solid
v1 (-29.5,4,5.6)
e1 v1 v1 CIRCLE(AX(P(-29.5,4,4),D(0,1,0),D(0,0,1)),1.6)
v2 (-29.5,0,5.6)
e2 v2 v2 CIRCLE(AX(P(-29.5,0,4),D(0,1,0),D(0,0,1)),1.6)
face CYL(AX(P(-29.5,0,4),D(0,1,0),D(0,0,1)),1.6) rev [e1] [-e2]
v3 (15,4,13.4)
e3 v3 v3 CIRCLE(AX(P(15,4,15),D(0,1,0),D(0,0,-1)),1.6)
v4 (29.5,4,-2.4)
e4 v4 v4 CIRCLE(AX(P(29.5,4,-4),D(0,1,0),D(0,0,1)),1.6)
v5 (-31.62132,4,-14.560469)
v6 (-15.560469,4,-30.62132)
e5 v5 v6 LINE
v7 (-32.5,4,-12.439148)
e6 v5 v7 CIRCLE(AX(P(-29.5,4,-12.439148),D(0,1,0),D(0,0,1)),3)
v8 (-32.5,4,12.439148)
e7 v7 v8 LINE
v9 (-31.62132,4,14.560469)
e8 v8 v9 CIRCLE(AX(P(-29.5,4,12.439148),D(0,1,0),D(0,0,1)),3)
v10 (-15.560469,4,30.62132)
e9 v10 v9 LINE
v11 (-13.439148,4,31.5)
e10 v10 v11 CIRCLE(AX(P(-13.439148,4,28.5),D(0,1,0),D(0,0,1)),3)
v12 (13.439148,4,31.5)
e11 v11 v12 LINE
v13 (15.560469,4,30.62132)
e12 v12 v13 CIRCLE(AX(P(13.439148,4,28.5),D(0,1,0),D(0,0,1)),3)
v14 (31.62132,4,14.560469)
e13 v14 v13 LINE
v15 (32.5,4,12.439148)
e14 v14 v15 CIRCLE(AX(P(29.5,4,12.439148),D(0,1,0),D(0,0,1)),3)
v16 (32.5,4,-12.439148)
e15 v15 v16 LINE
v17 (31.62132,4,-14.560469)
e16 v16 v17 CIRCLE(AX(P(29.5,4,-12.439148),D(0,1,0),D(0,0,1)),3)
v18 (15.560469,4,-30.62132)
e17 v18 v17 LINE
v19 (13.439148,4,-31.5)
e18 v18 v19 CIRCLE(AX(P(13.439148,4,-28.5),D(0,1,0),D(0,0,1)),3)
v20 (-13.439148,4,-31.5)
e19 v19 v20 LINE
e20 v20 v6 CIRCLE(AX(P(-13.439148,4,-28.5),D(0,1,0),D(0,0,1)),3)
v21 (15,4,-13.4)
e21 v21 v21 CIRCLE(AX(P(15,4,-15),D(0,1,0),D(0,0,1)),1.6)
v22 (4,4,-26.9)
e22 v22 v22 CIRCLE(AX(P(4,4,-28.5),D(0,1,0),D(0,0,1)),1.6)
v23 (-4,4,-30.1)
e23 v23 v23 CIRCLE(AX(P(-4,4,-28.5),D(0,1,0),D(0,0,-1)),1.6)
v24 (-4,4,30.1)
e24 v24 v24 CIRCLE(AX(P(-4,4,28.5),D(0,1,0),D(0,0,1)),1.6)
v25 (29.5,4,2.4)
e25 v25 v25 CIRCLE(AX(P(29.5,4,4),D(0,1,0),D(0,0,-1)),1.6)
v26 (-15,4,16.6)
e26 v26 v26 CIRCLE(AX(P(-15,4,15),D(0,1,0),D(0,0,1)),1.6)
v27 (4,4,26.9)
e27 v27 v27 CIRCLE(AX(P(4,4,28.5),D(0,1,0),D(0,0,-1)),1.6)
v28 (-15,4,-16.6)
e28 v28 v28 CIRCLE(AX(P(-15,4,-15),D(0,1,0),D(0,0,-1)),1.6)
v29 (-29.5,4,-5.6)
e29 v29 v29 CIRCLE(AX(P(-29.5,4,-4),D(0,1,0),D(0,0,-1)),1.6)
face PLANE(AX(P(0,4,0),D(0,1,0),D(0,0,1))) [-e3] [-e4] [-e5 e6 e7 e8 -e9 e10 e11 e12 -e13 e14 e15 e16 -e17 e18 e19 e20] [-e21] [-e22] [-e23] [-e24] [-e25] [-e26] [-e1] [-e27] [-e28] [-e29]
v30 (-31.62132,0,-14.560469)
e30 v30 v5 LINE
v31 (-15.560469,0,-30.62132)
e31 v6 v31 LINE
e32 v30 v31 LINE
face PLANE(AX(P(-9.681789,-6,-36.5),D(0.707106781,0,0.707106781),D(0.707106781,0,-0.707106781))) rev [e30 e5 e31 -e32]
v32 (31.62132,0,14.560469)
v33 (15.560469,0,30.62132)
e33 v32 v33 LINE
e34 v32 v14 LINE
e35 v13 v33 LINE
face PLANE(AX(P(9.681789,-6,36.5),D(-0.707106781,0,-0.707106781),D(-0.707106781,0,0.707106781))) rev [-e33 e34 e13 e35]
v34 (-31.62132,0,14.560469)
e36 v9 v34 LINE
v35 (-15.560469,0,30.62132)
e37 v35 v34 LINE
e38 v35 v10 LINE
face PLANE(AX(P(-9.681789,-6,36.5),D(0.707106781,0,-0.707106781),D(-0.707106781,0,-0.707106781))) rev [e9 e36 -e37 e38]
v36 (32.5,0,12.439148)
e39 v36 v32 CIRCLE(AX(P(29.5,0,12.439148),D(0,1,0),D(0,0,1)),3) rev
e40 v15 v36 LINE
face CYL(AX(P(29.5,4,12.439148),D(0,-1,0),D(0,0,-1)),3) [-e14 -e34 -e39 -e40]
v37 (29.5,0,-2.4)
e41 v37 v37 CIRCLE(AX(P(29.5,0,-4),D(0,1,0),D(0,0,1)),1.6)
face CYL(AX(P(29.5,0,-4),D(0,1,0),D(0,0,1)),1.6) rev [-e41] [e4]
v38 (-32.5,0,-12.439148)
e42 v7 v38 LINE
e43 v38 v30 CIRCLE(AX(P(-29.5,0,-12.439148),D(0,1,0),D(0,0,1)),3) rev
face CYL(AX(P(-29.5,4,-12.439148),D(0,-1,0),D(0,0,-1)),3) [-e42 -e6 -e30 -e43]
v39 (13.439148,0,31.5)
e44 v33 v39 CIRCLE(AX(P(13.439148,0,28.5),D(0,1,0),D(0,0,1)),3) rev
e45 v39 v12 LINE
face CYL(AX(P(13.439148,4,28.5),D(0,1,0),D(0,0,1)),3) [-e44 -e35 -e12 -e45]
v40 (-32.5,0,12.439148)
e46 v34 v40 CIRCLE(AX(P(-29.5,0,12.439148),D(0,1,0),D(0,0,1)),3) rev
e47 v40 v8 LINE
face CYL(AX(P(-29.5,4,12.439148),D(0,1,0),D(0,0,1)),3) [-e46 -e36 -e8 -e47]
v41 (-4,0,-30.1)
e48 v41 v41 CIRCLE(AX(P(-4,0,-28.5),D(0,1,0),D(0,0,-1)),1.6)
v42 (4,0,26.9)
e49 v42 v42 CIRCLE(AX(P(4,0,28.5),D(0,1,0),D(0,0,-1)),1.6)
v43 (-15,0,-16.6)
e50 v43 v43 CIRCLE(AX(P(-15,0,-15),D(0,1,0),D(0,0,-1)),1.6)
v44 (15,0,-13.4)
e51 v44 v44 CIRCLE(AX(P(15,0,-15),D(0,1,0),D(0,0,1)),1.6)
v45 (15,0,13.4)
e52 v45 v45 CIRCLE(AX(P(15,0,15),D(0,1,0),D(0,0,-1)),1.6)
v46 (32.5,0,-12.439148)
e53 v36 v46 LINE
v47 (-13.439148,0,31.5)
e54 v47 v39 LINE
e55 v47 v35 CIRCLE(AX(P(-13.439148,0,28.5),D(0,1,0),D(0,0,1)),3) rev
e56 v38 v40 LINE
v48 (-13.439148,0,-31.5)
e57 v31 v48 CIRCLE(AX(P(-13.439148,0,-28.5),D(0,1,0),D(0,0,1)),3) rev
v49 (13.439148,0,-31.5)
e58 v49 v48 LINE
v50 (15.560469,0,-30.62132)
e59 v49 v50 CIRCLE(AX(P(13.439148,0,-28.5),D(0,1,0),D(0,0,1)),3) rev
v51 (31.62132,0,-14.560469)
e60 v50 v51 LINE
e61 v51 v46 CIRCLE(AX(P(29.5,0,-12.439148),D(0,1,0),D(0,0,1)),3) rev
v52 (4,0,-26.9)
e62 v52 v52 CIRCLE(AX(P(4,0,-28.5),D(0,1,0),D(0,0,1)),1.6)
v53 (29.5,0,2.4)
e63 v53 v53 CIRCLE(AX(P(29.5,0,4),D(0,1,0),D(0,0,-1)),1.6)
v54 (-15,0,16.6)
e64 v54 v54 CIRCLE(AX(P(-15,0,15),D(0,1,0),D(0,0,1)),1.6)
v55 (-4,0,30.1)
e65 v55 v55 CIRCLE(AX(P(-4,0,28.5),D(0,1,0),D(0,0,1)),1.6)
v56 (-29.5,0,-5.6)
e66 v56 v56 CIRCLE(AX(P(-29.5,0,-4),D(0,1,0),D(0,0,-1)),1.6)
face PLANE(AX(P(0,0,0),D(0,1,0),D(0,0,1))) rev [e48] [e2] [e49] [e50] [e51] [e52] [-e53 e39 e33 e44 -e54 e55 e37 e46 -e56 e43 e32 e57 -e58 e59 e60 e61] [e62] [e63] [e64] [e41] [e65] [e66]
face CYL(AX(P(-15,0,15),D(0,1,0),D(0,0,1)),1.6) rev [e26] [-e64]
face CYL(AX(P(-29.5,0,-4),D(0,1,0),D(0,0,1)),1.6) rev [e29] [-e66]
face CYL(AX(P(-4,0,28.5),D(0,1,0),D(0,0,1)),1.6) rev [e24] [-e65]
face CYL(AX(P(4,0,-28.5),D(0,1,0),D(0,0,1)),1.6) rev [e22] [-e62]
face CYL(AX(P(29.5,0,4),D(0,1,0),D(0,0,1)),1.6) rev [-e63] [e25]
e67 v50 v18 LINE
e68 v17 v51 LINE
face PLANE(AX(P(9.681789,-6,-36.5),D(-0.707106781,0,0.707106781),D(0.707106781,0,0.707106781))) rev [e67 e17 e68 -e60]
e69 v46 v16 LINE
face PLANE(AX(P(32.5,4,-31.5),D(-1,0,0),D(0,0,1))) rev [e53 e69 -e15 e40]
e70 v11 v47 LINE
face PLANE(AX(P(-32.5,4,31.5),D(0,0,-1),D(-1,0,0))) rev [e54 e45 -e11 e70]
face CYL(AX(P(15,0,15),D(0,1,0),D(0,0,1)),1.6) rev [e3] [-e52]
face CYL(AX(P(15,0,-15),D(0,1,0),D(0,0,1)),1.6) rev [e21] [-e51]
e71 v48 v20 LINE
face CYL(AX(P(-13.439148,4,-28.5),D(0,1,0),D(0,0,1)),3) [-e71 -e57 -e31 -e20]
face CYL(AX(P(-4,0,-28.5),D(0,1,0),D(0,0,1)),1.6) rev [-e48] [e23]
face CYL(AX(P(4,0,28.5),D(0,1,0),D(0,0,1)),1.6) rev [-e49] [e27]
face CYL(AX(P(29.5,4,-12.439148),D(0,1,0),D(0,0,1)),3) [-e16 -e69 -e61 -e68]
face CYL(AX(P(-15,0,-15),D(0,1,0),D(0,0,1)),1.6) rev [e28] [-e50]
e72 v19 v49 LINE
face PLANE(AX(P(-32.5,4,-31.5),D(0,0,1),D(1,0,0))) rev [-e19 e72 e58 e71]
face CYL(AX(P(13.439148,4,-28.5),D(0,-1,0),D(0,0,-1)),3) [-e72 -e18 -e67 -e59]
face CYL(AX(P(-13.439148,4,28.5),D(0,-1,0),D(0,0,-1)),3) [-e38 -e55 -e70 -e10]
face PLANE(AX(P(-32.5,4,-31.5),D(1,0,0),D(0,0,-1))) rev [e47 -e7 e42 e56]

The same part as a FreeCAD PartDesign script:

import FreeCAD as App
import Part
import Sketcher


def edges_at(feature, points):
    """Names of the edges that pass closest to the given points."""
    edges = feature.Shape.Edges
    near = lambda p: min(range(len(edges)), key=lambda i: edges[i].distToShape(Part.Vertex(*p))[0])
    return sorted({f"Edge{near(p) + 1}" for p in points})


def add_polygon(sketch, points):
    """Adds a closed chain of lines whose ends are joined by coincident constraints."""
    first, n = sketch.GeometryCount, len(points)
    for a, b in zip(points, points[1:] + points[:1]):
        sketch.addGeometry(Part.LineSegment(App.Vector(*a, 0), App.Vector(*b, 0)), False)
    for i in range(n):
        sketch.addConstraint(Sketcher.Constraint("Coincident", first + i, 2, first + (i + 1) % n, 1))

doc = App.newDocument("Part")
params = doc.addObject("Spreadsheet::Sheet", "Params")
for row, (alias, value) in enumerate([
    ("sketch1_width", "65 mm"),
    ("sketch1_height", "63 mm"),
    ("pad1_length", "4 mm"),
    ("sketch2_diameter", "3.2 mm"),
    ("pocket1_length", "4 mm"),
    ("sketch3_diameter", "3.2 mm"),
    ("pocket2_length", "4 mm"),
    ("fillet_radius", "3 mm"),
    ("pocket3_length", "10 mm"),
    ("fillet2_radius", "3 mm"),
], start=1):
    params.set(f"A{row}", alias)
    params.set(f"B{row}", "=" + value)
    params.setAlias(f"B{row}", alias)

body = doc.addObject("PartDesign::Body", "Body")

# Sketch on XZ plane
sketch1 = body.newObject("Sketcher::SketchObject", "Sketch")
sketch1.AttachmentSupport = (doc.getObject("XZ_Plane"), [""])
sketch1.MapMode = "FlatFace"
add_polygon(sketch1, [(-32, -32), (-32, 32), (32, 32), (32, -32)])  # lines 0-3
sketch1.addConstraint([
    Sketcher.Constraint("Vertical", 0),
    Sketcher.Constraint("Horizontal", 1),
    Sketcher.Constraint("Vertical", 2),
    Sketcher.Constraint("Horizontal", 3),
    Sketcher.Constraint("Symmetric", 0, 2, 2, 2, -1, 1),
    Sketcher.Constraint("DistanceX", 1, 1, 1, 2, 65.0),
    Sketcher.Constraint("DistanceY", 0, 1, 0, 2, 63.0),
])
sketch1.setExpression("Constraints[9]", "Params.sketch1_width")
sketch1.setExpression("Constraints[10]", "Params.sketch1_height")
pad1 = body.newObject("PartDesign::Pad", "Pad")
pad1.Profile = sketch1
pad1.setExpression("Length", "Params.pad1_length")
pad1.Reversed = True

# Sketch on XZ plane
sketch2 = body.newObject("Sketcher::SketchObject", "Sketch001")
sketch2.AttachmentSupport = (doc.getObject("XZ_Plane"), [""])
sketch2.MapMode = "FlatFace"
sketch2.AttachmentOffset = App.Placement(App.Vector(0, 0, -4), App.Rotation())
sketch2.addGeometry([
    Part.Circle(App.Vector(-15, 15, 0), App.Vector(0, 0, 1), 1.6),
    Part.Circle(App.Vector(-15, -15, 0), App.Vector(0, 0, 1), 1.6),
    Part.Circle(App.Vector(15, -15, 0), App.Vector(0, 0, 1), 1.6),
    Part.Circle(App.Vector(15, 15, 0), App.Vector(0, 0, 1), 1.6),
], False)
sketch2.addConstraint([
    Sketcher.Constraint("Equal", 0, 1),
    Sketcher.Constraint("Equal", 1, 2),
    Sketcher.Constraint("Equal", 2, 3),
    Sketcher.Constraint("Symmetric", 0, 3, 2, 3, -1, 1),
    Sketcher.Constraint("Symmetric", 1, 3, 3, 3, -1, 1),
    Sketcher.Constraint("Symmetric", 1, 3, 2, 3, -2),
    Sketcher.Constraint("Diameter", 0, 3.2),
    Sketcher.Constraint("DistanceX", 0, 3, -1, 1, 15.0),
    Sketcher.Constraint("DistanceY", -1, 1, 0, 3, 15.0),
])
sketch2.setExpression("Constraints[6]", "Params.sketch2_diameter")
pocket1 = body.newObject("PartDesign::Pocket", "Pocket")
pocket1.Profile = sketch2
pocket1.setExpression("Length", "Params.pocket1_length")
pocket1.Reversed = True

# Sketch on XZ plane
sketch3 = body.newObject("Sketcher::SketchObject", "Sketch002")
sketch3.AttachmentSupport = (doc.getObject("XZ_Plane"), [""])
sketch3.MapMode = "FlatFace"
sketch3.AttachmentOffset = App.Placement(App.Vector(0, 0, -4), App.Rotation())
sketch3.addGeometry([
    Part.Circle(App.Vector(-4, 28.5, 0), App.Vector(0, 0, 1), 1.6),  # 0
    Part.Circle(App.Vector(4, 28.5, 0), App.Vector(0, 0, 1), 1.6),  # 1
    Part.Circle(App.Vector(4, -28.5, 0), App.Vector(0, 0, 1), 1.6),  # 2
    Part.Circle(App.Vector(-4, -28.5, 0), App.Vector(0, 0, 1), 1.6),  # 3
    Part.Circle(App.Vector(-29.5, 4, 0), App.Vector(0, 0, 1), 1.6),  # 4
    Part.Circle(App.Vector(-29.5, -4, 0), App.Vector(0, 0, 1), 1.6),  # 5
    Part.Circle(App.Vector(29.5, -4, 0), App.Vector(0, 0, 1), 1.6),  # 6
    Part.Circle(App.Vector(29.5, 4, 0), App.Vector(0, 0, 1), 1.6),  # 7
], False)
sketch3.addConstraint([
    Sketcher.Constraint("Equal", 0, 1),
    Sketcher.Constraint("Equal", 1, 2),
    Sketcher.Constraint("Equal", 2, 3),
    Sketcher.Constraint("Equal", 3, 4),
    Sketcher.Constraint("Equal", 4, 5),
    Sketcher.Constraint("Equal", 5, 6),
    Sketcher.Constraint("Equal", 6, 7),
    Sketcher.Constraint("Symmetric", 0, 3, 2, 3, -1, 1),
    Sketcher.Constraint("Symmetric", 1, 3, 3, 3, -1, 1),
    Sketcher.Constraint("Symmetric", 4, 3, 6, 3, -1, 1),
    Sketcher.Constraint("Symmetric", 5, 3, 7, 3, -1, 1),
    Sketcher.Constraint("Symmetric", 0, 3, 1, 3, -2),
    Sketcher.Constraint("Symmetric", 5, 3, 6, 3, -2),
    Sketcher.Constraint("Diameter", 0, 3.2),
    Sketcher.Constraint("DistanceX", 0, 3, -1, 1, 4.0),
    Sketcher.Constraint("DistanceY", -1, 1, 4, 3, 4.0),
    Sketcher.Constraint("DistanceY", 2, 3, 1, 3, 57.0),
    Sketcher.Constraint("DistanceX", 5, 3, 6, 3, 59.0),
])
sketch3.setExpression("Constraints[13]", "Params.sketch3_diameter")
pocket2 = body.newObject("PartDesign::Pocket", "Pocket001")
pocket2.Profile = sketch3
pocket2.setExpression("Length", "Params.pocket2_length")
pocket2.Reversed = True
doc.recompute()

fillet = body.newObject("PartDesign::Fillet", "Fillet")
fillet.Base = (pocket2, edges_at(pocket2, [
    (32.5, 2, 31.5),
    (-32.5, 2, 31.5),
    (-32.5, 2, -31.5),
    (32.5, 2, -31.5),
]))
fillet.setExpression("Radius", "Params.fillet_radius")

# Sketch on XZ plane
sketch4 = body.newObject("Sketcher::SketchObject", "Sketch003")
sketch4.AttachmentSupport = (doc.getObject("XZ_Plane"), [""])
sketch4.MapMode = "FlatFace"
sketch4.AttachmentOffset = App.Placement(App.Vector(0, 0, -4), App.Rotation())
add_polygon(sketch4, [(-48, 47), (-10, 36), (-38, 9)])  # lines 0-2
add_polygon(sketch4, [(48, 47), (38, 9), (10, 36)])  # lines 3-5
add_polygon(sketch4, [(-48, -47), (-38, -9), (-10, -36)])  # lines 6-8
add_polygon(sketch4, [(38, -9), (48, -47), (10, -36)])  # lines 9-11
sketch4.addConstraint([
    Sketcher.Constraint("Symmetric", 3, 2, 6, 2, -1, 1),
    Sketcher.Constraint("Symmetric", 4, 2, 7, 2, -1, 1),
    Sketcher.Constraint("Symmetric", 5, 2, 8, 2, -1, 1),
    Sketcher.Constraint("Symmetric", 2, 2, 9, 2, -1, 1),
    Sketcher.Constraint("Symmetric", 0, 2, 10, 2, -1, 1),
    Sketcher.Constraint("Symmetric", 1, 2, 11, 2, -1, 1),
    Sketcher.Constraint("Symmetric", 1, 2, 3, 2, -2),
    Sketcher.Constraint("Symmetric", 0, 2, 4, 2, -2),
    Sketcher.Constraint("Symmetric", 2, 2, 5, 2, -2),
    Sketcher.Constraint("Perpendicular", 0, 3),
    Sketcher.Constraint("Perpendicular", 1, 4),
    Sketcher.Constraint("Equal", 0, 1),
    Sketcher.Constraint("DistanceX", 1, 2, 3, 2, 75.0),
    Sketcher.Constraint("DistanceY", 7, 2, 0, 2, 73.0),
    Sketcher.Constraint("Distance", 0, 39.340891),
])
pocket3 = body.newObject("PartDesign::Pocket", "Pocket002")
pocket3.Profile = sketch4
pocket3.setExpression("Length", "Params.pocket3_length")
pocket3.Reversed = True
doc.recompute()

fillet2 = body.newObject("PartDesign::Fillet", "Fillet001")
fillet2.Base = (pocket3, edges_at(pocket3, [
    (32.5, 2, 13.682),
    (14.682, 2, 31.5),
    (-14.682, 2, -31.5),
    (-32.5, 2, -13.682),
    (32.5, 2, -13.682),
    (14.682, 2, -31.5),
    (-32.5, 2, 13.682),
    (-14.682, 2, 31.5),
]))
fillet2.setExpression("Radius", "Params.fillet2_radius")

doc.recompute()
